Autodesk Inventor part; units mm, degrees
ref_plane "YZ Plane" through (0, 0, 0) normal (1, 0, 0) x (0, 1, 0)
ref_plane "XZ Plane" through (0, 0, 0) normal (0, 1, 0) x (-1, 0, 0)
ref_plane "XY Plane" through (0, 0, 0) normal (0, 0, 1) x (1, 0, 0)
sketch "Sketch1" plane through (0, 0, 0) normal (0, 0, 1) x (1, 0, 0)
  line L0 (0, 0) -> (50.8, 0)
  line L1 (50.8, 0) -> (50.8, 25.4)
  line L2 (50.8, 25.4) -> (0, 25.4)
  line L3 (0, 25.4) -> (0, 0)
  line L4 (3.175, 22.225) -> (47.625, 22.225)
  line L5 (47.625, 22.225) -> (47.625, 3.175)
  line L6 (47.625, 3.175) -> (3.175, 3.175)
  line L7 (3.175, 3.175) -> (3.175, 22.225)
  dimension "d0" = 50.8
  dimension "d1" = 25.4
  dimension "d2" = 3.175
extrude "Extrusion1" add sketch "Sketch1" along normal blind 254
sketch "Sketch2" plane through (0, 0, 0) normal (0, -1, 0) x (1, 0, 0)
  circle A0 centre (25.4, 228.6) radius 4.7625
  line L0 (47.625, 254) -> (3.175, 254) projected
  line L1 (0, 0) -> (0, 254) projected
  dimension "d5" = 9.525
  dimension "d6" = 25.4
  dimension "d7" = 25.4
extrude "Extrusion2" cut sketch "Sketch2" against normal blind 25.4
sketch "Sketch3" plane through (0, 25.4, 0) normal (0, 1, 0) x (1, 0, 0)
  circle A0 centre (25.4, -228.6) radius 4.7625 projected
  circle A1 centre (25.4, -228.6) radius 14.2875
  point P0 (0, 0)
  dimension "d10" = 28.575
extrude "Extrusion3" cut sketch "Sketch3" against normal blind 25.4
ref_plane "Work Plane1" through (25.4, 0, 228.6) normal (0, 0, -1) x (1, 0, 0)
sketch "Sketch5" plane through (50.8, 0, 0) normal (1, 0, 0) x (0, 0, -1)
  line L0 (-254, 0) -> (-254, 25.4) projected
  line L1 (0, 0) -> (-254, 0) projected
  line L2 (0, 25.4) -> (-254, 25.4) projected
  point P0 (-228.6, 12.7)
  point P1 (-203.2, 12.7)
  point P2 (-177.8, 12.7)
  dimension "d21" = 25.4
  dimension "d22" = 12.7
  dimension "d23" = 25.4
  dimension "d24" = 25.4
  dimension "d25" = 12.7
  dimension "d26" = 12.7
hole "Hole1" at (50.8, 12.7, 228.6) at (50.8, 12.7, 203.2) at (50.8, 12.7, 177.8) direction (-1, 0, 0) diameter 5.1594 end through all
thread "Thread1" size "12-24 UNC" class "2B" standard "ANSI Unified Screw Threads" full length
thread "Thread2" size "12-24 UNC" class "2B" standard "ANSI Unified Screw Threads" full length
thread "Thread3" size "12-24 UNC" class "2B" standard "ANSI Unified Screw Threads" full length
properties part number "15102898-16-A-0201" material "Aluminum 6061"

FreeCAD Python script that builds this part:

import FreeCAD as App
import Part
import Sketcher
from FreeCAD import Vector
Q = App.Units.Quantity

doc = App.newDocument("Part")
params = doc.addObject("Spreadsheet::Sheet", "Params")
for row, (alias, value) in enumerate([
    ("sketch1_width", "2 in"),
    ("sketch1_height", "1 in"),
    ("pad1_length", "10 in"),
    ("sketch2_diameter", "0.375 in"),
    ("pocket1_length", "1 in"),
    ("sketch3_diameter", "1.125 in"),
    ("sketch3_diameter2", "0.375 in"),
    ("pocket2_length", "1 in"),
    ("sketch4_diameter", "0.203126 in"),
    ("hole_diameter", "0.203126 in"),
], start=1):
    params.set(f"A{row}", alias)
    params.set(f"B{row}", "=" + value)
    params.setAlias(f"B{row}", alias)

body = doc.addObject("PartDesign::Body", "Body")

sketch1 = body.newObject("Sketcher::SketchObject", "Sketch")
sketch1.AttachmentSupport = (doc.getObject("XY_Plane"), [""])
sketch1.MapMode = "FlatFace"
sketch1.addGeometry([
    Part.LineSegment(Vector(0, 25, 0), Vector(0, 0, 0)),
    Part.LineSegment(Vector(0, 0, 0), Vector(51, 0, 0)),
    Part.LineSegment(Vector(51, 0, 0), Vector(51, 25, 0)),
    Part.LineSegment(Vector(51, 25, 0), Vector(0, 25, 0)),
    Part.LineSegment(Vector(3, 3, 0), Vector(3, 22, 0)),
    Part.LineSegment(Vector(3, 22, 0), Vector(48, 22, 0)),
    Part.LineSegment(Vector(48, 22, 0), Vector(48, 3, 0)),
    Part.LineSegment(Vector(48, 3, 0), Vector(3, 3, 0)),
], False)
sketch1.addConstraint([
    Sketcher.Constraint("Coincident", 0, 2, 1, 1),
    Sketcher.Constraint("Coincident", 1, 2, 2, 1),
    Sketcher.Constraint("Coincident", 2, 2, 3, 1),
    Sketcher.Constraint("Coincident", 3, 2, 0, 1),
    Sketcher.Constraint("Coincident", 4, 2, 5, 1),
    Sketcher.Constraint("Coincident", 5, 2, 6, 1),
    Sketcher.Constraint("Coincident", 6, 2, 7, 1),
    Sketcher.Constraint("Coincident", 7, 2, 4, 1),
    Sketcher.Constraint("Vertical", 0),
    Sketcher.Constraint("Horizontal", 1),
    Sketcher.Constraint("Vertical", 2),
    Sketcher.Constraint("Horizontal", 3),
    Sketcher.Constraint("Vertical", 4),
    Sketcher.Constraint("Horizontal", 5),
    Sketcher.Constraint("Vertical", 6),
    Sketcher.Constraint("Horizontal", 7),
    Sketcher.Constraint("Coincident", 0, 2, -1, 1),
    Sketcher.Constraint("DistanceX", 1, 1, 1, 2, Q("2 in")),
    Sketcher.Constraint("DistanceY", 0, 2, 0, 1, Q("1 in")),
    Sketcher.Constraint("DistanceX", -1, 1, 4, 2, Q("0.125 in")),
    Sketcher.Constraint("DistanceY", -1, 1, 6, 2, Q("0.125 in")),
    Sketcher.Constraint("DistanceY", 4, 2, 3, 2, Q("0.125 in")),
    Sketcher.Constraint("DistanceX", 5, 2, 2, 2, Q("0.125 in")),
])
sketch1.setExpression("Constraints[17]", "Params.sketch1_width")
sketch1.setExpression("Constraints[18]", "Params.sketch1_height")
pad1 = body.newObject("PartDesign::Pad", "Pad")
pad1.Profile = sketch1
pad1.setExpression("Length", "Params.pad1_length")

sketch2 = body.newObject("Sketcher::SketchObject", "Sketch001")
sketch2.AttachmentSupport = (doc.getObject("XZ_Plane"), [""])
sketch2.MapMode = "FlatFace"
sketch2.addGeometry(Part.Circle(Vector(25.4, 228.6, 0), Vector(0, 0, 1), 4.8), False)
sketch2.addConstraint([
    Sketcher.Constraint("Diameter", 0, Q("0.375 in")),
    Sketcher.Constraint("DistanceX", -1, 1, 0, 3, Q("1 in")),
    Sketcher.Constraint("DistanceY", -1, 1, 0, 3, Q("9 in")),
])
sketch2.setExpression("Constraints[0]", "Params.sketch2_diameter")
pocket1 = body.newObject("PartDesign::Pocket", "Pocket")
pocket1.Profile = sketch2
pocket1.setExpression("Length", "Params.pocket1_length")

sketch3 = body.newObject("Sketcher::SketchObject", "Sketch002")
sketch3.AttachmentSupport = (doc.getObject("XZ_Plane"), [""])
sketch3.MapMode = "FlatFace"
sketch3.AttachmentOffset = App.Placement(Vector(0, 0, -1 * 25.4), App.Rotation())
sketch3.addGeometry([
    Part.Circle(Vector(25.4, 228.6, 0), Vector(0, 0, 1), 14.3),
    Part.Circle(Vector(25.4, 228.6, 0), Vector(0, 0, 1), 4.8),
], False)
sketch3.addConstraint([
    Sketcher.Constraint("Coincident", 1, 3, 0, 3),
    Sketcher.Constraint("Diameter", 0, Q("1.125 in")),
    Sketcher.Constraint("Diameter", 1, Q("0.375 in")),
    Sketcher.Constraint("DistanceX", -1, 1, 0, 3, Q("1 in")),
    Sketcher.Constraint("DistanceY", -1, 1, 0, 3, Q("9 in")),
])
sketch3.setExpression("Constraints[1]", "Params.sketch3_diameter")
sketch3.setExpression("Constraints[2]", "Params.sketch3_diameter2")
pocket2 = body.newObject("PartDesign::Pocket", "Pocket001")
pocket2.Profile = sketch3
pocket2.setExpression("Length", "Params.pocket2_length")
pocket2.Reversed = True

sketch4 = body.newObject("Sketcher::SketchObject", "Sketch003")
sketch4.AttachmentSupport = (doc.getObject("YZ_Plane"), [""])
sketch4.MapMode = "FlatFace"
sketch4.AttachmentOffset = App.Placement(Vector(0, 0, 2 * 25.4), App.Rotation())
sketch4.addGeometry([
    Part.Circle(Vector(12.7, 228.6, 0), Vector(0, 0, 1), 2.6),
    Part.Circle(Vector(12.7, 203.2, 0), Vector(0, 0, 1), 2.6),
    Part.Circle(Vector(12.7, 177.8, 0), Vector(0, 0, 1), 2.6),
], False)
sketch4.addConstraint([
    Sketcher.Constraint("Equal", 0, 1),
    Sketcher.Constraint("Equal", 1, 2),
    Sketcher.Constraint("Vertical", 0, 3, 1, 3),
    Sketcher.Constraint("Vertical", 1, 3, 2, 3),
    Sketcher.Constraint("Diameter", 0, Q("0.203126 in")),
    Sketcher.Constraint("DistanceY", -1, 1, 0, 3, Q("9 in")),
    Sketcher.Constraint("DistanceY", -1, 1, 1, 3, Q("8 in")),
    Sketcher.Constraint("DistanceY", -1, 1, 2, 3, Q("7 in")),
    Sketcher.Constraint("DistanceX", -1, 1, 0, 3, Q("0.5 in")),
])
sketch4.setExpression("Constraints[4]", "Params.sketch4_diameter")
doc.recompute()
hole = body.newObject("PartDesign::Hole", "Hole")
hole.Profile = sketch4
hole.ThreadType = "None"
hole.setExpression("Diameter", "Params.hole_diameter")
hole.DepthType = "ThroughAll"

doc.recompute()
